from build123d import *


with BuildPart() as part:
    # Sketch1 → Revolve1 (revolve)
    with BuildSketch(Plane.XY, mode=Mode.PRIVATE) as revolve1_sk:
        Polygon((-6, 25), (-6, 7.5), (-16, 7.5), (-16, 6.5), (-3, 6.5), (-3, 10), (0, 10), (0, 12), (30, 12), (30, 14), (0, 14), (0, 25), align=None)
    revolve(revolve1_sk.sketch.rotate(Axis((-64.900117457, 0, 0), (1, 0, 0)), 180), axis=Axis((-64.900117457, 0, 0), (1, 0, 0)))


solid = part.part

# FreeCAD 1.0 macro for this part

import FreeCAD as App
import Part
import Sketcher
from FreeCAD import Vector
Q = App.Units.Quantity


def add_polygon(sketch, points):
    """Adds a closed chain of lines whose ends are joined by coincident constraints."""
    first, n = sketch.GeometryCount, len(points)
    for a, b in zip(points, points[1:] + points[:1]):
        sketch.addGeometry(Part.LineSegment(App.Vector(*a, 0), App.Vector(*b, 0)), False)
    for i in range(n):
        sketch.addConstraint(Sketcher.Constraint("Coincident", first + i, 2, first + (i + 1) % n, 1))

doc = App.newDocument("Part")
body = doc.addObject("PartDesign::Body", "Body")

# Sketch on XY plane
sketch1 = body.newObject("Sketcher::SketchObject", "Sketch")
sketch1.AttachmentSupport = (doc.getObject("XY_Plane"), [""])
sketch1.MapMode = "FlatFace"
add_polygon(sketch1, [(-6, 25), (-6, 7.5), (-16, 7.5), (-16, 6.5), (-3, 6.5), (-3, 10), (0, 10), (0, 12), (30, 12), (30, 14), (0, 14), (0, 25)])  # lines 0-11
sketch1.addConstraint([
    Sketcher.Constraint("Vertical", 0),
    Sketcher.Constraint("Horizontal", 1),
    Sketcher.Constraint("Vertical", 2),
    Sketcher.Constraint("Horizontal", 3),
    Sketcher.Constraint("Vertical", 4),
    Sketcher.Constraint("Horizontal", 5),
    Sketcher.Constraint("Vertical", 6),
    Sketcher.Constraint("Horizontal", 7),
    Sketcher.Constraint("Vertical", 8),
    Sketcher.Constraint("Horizontal", 9),
    Sketcher.Constraint("Vertical", 10),
    Sketcher.Constraint("Horizontal", 11),
    Sketcher.Constraint("PointOnObject", 5, 2, -2),
    Sketcher.Constraint("PointOnObject", 9, 2, -2),
    Sketcher.Constraint("Equal", 6, 8),
    Sketcher.Constraint("DistanceX", 1, 2, 1, 1, Q("10 mm")),
    Sketcher.Constraint("DistanceX", 3, 1, 3, 2, Q("13 mm")),
    Sketcher.Constraint("DistanceX", 5, 1, 5, 2, Q("3 mm")),
    Sketcher.Constraint("DistanceX", 7, 1, 7, 2, Q("30 mm")),
    Sketcher.Constraint("DistanceY", 2, 2, 2, 1, Q("1 mm")),
    Sketcher.Constraint("DistanceY", 6, 1, 6, 2, Q("2 mm")),
    Sketcher.Constraint("DistanceY", 10, 1, 10, 2, Q("11 mm")),
    Sketcher.Constraint("DistanceY", 0, 2, 0, 1, Q("17.5 mm")),
    Sketcher.Constraint("DistanceY", -1, 1, 4, 2, Q("10 mm")),
])
revolution = body.newObject("PartDesign::Revolution", "Revolution")
revolution.Profile = sketch1
revolution.ReferenceAxis = (sketch1, ["H_Axis"])
revolution.Angle = 360

doc.recompute()
